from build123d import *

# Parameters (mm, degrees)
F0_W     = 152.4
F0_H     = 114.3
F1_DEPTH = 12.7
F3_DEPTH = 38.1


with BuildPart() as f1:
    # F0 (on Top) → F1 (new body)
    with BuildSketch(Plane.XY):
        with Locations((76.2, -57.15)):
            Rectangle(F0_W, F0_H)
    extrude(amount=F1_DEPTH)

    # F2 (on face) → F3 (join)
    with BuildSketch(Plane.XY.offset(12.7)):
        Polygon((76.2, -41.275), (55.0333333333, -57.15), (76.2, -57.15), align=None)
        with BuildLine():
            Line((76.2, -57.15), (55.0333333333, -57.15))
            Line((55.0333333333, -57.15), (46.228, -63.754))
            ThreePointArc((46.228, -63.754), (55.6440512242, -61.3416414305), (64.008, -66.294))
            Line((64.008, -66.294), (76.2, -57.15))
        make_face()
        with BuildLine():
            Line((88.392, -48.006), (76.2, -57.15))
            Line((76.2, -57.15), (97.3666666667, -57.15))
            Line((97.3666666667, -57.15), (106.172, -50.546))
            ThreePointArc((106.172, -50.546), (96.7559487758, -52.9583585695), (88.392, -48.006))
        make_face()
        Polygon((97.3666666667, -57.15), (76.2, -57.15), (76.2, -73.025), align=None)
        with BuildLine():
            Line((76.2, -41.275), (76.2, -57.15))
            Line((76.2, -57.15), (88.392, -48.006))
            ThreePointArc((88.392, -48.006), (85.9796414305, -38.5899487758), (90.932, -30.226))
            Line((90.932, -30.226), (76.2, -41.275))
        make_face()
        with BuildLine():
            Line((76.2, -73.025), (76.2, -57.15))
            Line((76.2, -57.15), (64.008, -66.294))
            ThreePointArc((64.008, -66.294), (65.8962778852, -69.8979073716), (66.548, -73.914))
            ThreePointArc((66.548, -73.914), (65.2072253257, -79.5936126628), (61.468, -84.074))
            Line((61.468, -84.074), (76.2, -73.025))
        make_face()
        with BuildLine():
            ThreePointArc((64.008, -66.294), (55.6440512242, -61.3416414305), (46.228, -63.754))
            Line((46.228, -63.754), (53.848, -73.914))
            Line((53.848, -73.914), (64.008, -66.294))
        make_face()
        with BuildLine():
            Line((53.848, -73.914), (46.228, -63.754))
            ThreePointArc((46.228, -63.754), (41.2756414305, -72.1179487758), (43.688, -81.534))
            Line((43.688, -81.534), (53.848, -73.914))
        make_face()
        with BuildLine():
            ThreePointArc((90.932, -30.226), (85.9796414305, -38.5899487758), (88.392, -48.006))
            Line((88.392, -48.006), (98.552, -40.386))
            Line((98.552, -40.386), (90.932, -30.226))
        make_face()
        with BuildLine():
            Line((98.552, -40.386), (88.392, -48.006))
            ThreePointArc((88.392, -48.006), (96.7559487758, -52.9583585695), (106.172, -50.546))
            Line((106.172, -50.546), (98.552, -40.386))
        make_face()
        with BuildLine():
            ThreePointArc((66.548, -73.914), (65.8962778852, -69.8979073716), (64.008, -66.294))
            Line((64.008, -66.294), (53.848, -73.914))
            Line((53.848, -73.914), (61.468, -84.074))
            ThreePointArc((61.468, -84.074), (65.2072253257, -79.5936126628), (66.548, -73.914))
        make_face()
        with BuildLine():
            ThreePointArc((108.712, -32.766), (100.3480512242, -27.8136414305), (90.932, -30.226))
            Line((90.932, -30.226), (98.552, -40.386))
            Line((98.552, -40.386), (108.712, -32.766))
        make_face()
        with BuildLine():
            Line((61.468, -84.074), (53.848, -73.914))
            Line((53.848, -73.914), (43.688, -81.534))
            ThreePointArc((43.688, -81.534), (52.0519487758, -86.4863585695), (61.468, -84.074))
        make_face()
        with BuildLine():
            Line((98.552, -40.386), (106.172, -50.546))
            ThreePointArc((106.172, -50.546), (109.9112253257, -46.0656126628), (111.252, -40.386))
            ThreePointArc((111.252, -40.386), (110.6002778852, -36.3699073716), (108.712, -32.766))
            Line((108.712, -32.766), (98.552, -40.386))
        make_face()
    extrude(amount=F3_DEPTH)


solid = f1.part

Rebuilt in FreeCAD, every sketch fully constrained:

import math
import FreeCAD as App
import Part
import Sketcher
Q = App.Units.Quantity


def add_polygon(sketch, points):
    """Adds a closed chain of lines whose ends are joined by coincident constraints."""
    first, n = sketch.GeometryCount, len(points)
    for a, b in zip(points, points[1:] + points[:1]):
        sketch.addGeometry(Part.LineSegment(App.Vector(*a, 0), App.Vector(*b, 0)), False)
    for i in range(n):
        sketch.addConstraint(Sketcher.Constraint("Coincident", first + i, 2, first + (i + 1) % n, 1))

doc = App.newDocument("Part")
body = doc.addObject("PartDesign::Body", "Body")

# Sketch on XY plane
sketch1 = doc.addObject("Sketcher::SketchObject", "Sketch")
body.addObject(sketch1)
sketch1.AttachmentSupport = (doc.XY_Plane, [""])
sketch1.MapMode = "FlatFace"
add_polygon(sketch1, [(0, 0), (0, -114), (152, -114), (152, 0)])  # lines 0-3
sketch1.addConstraint(Sketcher.Constraint("Vertical", 0))
sketch1.addConstraint(Sketcher.Constraint("Horizontal", 1))
sketch1.addConstraint(Sketcher.Constraint("Vertical", 2))
sketch1.addConstraint(Sketcher.Constraint("Horizontal", 3))
sketch1.addConstraint(Sketcher.Constraint("Coincident", 3, 2, -1, 1))
sketch1.addConstraint(Sketcher.Constraint("DistanceX", 1, 1, 1, 2, Q("6 in")))
sketch1.addConstraint(Sketcher.Constraint("DistanceY", 0, 2, 0, 1, Q("4.5 in")))
pad1 = doc.addObject("PartDesign::Pad", "Pad")
body.addObject(pad1)
pad1.Profile = sketch1
pad1.Length = Q("0.5 in")

# Sketch on XY plane
sketch2 = doc.addObject("Sketcher::SketchObject", "Sketch001")
body.addObject(sketch2)
sketch2.AttachmentSupport = (doc.XY_Plane, [""])
sketch2.MapMode = "FlatFace"
sketch2.AttachmentOffset = App.Placement(App.Vector(0, 0, 0.5 * 25.4), App.Rotation())
sketch2.addGeometry(Part.LineSegment(App.Vector(55, -57, 0), App.Vector(46, -64, 0)), False)
sketch2.addGeometry(Part.ArcOfCircle(Part.Circle(App.Vector(54, -74, 0), App.Vector(0, 0, 1), 13), math.radians(127), math.radians(307)), False)
sketch2.addGeometry(Part.LineSegment(App.Vector(61, -84, 0), App.Vector(97, -57, 0)), False)
sketch2.addGeometry(Part.LineSegment(App.Vector(97, -57, 0), App.Vector(106, -51, 0)), False)
sketch2.addGeometry(Part.ArcOfCircle(Part.Circle(App.Vector(99, -40, 0), App.Vector(0, 0, 1), 13), math.radians(-53), math.radians(0)), False)
sketch2.addGeometry(Part.ArcOfCircle(Part.Circle(App.Vector(99, -40, 0), App.Vector(0, 0, 1), 13), math.radians(0), math.radians(37)), False)
sketch2.addGeometry(Part.ArcOfCircle(Part.Circle(App.Vector(99, -40, 0), App.Vector(0, 0, 1), 13), math.radians(37), math.radians(127)), False)
sketch2.addGeometry(Part.LineSegment(App.Vector(91, -30, 0), App.Vector(55, -57, 0)), False)
sketch2.addConstraint(Sketcher.Constraint("Tangent", 0, 2, 1, 1))
sketch2.addConstraint(Sketcher.Constraint("Tangent", 1, 2, 2, 1))
sketch2.addConstraint(Sketcher.Constraint("Coincident", 2, 2, 3, 1))
sketch2.addConstraint(Sketcher.Constraint("Tangent", 3, 2, 4, 1))
sketch2.addConstraint(Sketcher.Constraint("Tangent", 4, 2, 5, 1))
sketch2.addConstraint(Sketcher.Constraint("Tangent", 5, 2, 6, 1))
sketch2.addConstraint(Sketcher.Constraint("Tangent", 6, 2, 7, 1))
sketch2.addConstraint(Sketcher.Constraint("Coincident", 7, 2, 0, 1))
sketch2.addConstraint(Sketcher.Constraint("Coincident", 6, 3, 4, 3))
sketch2.addConstraint(Sketcher.Constraint("Equal", 1, 4))
sketch2.addConstraint(Sketcher.Constraint("Parallel", 0, 2))
sketch2.addConstraint(Sketcher.Constraint("Parallel", 2, 3))
sketch2.addConstraint(Sketcher.Constraint("Horizontal", 6, 3, 4, 2))
sketch2.addConstraint(Sketcher.Constraint("Horizontal", 2, 2, 7, 2))
sketch2.addConstraint(Sketcher.Constraint("Equal", 0, 3))
sketch2.addConstraint(Sketcher.Constraint("Radius", 1, Q("0.5 in")))
sketch2.addConstraint(Sketcher.Constraint("DistanceX", 0, 2, 1, 3, Q("0.3 in")))
sketch2.addConstraint(Sketcher.Constraint("DistanceX", 5, 2, 4, 2, Q("0.1 in")))
sketch2.addConstraint(Sketcher.Constraint("DistanceX", -1, 1, 1, 3, Q("2.12 in")))
sketch2.addConstraint(Sketcher.Constraint("DistanceY", 1, 3, -1, 1, Q("2.91 in")))
sketch2.addConstraint(Sketcher.Constraint("DistanceX", -1, 1, 4, 3, Q("3.88 in")))
pad2 = doc.addObject("PartDesign::Pad", "Pad001")
body.addObject(pad2)
pad2.Profile = sketch2
pad2.Length = Q("1.5 in")

doc.recompute()
